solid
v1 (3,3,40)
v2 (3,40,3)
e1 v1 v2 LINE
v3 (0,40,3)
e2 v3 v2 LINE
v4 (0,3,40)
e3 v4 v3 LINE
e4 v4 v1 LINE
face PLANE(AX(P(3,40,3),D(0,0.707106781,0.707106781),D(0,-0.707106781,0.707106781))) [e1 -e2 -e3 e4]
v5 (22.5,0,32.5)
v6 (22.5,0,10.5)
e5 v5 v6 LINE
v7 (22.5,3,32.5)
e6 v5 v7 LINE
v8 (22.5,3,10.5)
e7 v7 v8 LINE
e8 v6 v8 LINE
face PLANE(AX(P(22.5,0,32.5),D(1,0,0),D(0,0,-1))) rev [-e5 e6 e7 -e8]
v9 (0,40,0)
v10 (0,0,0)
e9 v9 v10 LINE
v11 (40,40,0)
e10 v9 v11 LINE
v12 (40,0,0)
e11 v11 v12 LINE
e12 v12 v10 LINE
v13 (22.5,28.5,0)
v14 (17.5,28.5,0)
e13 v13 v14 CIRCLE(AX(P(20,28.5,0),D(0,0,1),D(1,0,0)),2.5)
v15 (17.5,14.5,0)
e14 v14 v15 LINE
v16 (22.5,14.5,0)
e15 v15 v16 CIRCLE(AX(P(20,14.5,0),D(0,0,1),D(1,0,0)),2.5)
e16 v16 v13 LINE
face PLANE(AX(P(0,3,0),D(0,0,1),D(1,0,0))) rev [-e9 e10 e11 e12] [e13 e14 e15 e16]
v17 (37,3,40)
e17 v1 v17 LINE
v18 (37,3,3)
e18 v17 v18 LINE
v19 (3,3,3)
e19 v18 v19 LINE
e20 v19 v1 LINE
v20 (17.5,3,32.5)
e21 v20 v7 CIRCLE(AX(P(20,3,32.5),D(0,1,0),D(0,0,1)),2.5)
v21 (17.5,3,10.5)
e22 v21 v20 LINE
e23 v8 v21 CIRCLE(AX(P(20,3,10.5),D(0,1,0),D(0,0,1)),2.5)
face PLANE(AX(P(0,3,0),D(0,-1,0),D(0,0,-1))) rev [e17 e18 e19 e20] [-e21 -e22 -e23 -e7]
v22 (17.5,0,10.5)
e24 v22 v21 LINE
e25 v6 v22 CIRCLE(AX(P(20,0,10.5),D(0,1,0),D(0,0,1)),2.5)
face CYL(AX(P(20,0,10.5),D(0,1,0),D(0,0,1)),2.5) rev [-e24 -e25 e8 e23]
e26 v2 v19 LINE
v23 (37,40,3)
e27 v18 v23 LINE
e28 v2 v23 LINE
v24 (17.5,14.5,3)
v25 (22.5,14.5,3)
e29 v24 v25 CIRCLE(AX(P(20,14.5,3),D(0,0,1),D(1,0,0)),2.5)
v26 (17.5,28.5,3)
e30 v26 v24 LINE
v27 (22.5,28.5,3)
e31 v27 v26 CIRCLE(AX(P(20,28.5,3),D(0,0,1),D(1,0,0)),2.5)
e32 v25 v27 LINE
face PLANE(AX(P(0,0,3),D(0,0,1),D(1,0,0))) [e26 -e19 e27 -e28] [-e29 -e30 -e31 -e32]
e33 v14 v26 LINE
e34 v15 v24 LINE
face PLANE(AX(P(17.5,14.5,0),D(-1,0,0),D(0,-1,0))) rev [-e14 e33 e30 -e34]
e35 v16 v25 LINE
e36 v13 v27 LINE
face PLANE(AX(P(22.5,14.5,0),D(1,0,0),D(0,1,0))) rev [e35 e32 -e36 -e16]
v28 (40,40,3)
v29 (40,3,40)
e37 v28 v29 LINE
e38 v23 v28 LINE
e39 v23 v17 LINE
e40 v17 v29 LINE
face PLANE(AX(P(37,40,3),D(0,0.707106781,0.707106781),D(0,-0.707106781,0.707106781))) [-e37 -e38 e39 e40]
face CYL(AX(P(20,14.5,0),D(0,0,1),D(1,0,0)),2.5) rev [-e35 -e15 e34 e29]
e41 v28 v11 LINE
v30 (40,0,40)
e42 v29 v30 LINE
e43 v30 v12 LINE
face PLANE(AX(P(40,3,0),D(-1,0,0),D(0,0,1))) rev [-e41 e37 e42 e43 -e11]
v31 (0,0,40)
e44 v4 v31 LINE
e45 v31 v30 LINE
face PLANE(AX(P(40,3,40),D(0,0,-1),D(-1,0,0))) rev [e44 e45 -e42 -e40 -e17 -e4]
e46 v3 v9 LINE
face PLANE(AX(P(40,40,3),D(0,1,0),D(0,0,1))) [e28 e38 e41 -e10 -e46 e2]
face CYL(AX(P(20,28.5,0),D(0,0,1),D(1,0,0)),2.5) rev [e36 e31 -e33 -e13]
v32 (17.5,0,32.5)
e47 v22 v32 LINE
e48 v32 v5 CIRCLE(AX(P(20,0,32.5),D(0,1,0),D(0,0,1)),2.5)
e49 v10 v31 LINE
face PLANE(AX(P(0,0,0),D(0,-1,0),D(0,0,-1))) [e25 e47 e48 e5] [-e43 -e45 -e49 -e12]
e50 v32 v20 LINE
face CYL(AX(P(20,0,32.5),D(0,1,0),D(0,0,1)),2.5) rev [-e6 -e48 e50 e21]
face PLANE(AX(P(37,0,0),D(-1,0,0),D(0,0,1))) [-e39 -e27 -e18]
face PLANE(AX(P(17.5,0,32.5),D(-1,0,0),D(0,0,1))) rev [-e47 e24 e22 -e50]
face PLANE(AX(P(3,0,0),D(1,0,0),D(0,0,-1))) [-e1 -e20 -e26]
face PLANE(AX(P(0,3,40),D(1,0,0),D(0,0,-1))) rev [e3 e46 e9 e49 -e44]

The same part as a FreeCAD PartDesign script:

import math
import FreeCAD as App
import Part
import Sketcher

doc = App.newDocument("Part")
body = doc.addObject("PartDesign::Body", "Body")

sketch1 = body.newObject("Sketcher::SketchObject", "Sketch")
sketch1.AttachmentSupport = (doc.getObject("XZ_Plane"), [""])
sketch1.MapMode = "FlatFace"
sketch1.addGeometry([
    Part.LineSegment(App.Vector(0, 0, 0), App.Vector(0, 40, 0)),
    Part.LineSegment(App.Vector(0, 40, 0), App.Vector(40, 40, 0)),
    Part.LineSegment(App.Vector(40, 40, 0), App.Vector(40, 0, 0)),
    Part.LineSegment(App.Vector(40, 0, 0), App.Vector(0, 0, 0)),
], False)
sketch1.addConstraint([
    Sketcher.Constraint("Coincident", 0, 2, 1, 1),
    Sketcher.Constraint("Coincident", 1, 2, 2, 1),
    Sketcher.Constraint("Coincident", 2, 2, 3, 1),
    Sketcher.Constraint("Coincident", 3, 2, 0, 1),
    Sketcher.Constraint("Vertical", 0),
    Sketcher.Constraint("Horizontal", 1),
    Sketcher.Constraint("Vertical", 2),
    Sketcher.Constraint("Horizontal", 3),
    Sketcher.Constraint("Coincident", 3, 2, -1, 1),
    Sketcher.Constraint("Equal", 3, 0),
    Sketcher.Constraint("DistanceX", 1, 1, 1, 2, 40.0),
])
pad1 = body.newObject("PartDesign::Pad", "Pad")
pad1.Profile = sketch1
pad1.Length = 3
pad1.Reversed = True

sketch2 = body.newObject("Sketcher::SketchObject", "Sketch001")
sketch2.AttachmentSupport = (doc.getObject("XY_Plane"), [""])
sketch2.MapMode = "FlatFace"
sketch2.addGeometry([
    Part.LineSegment(App.Vector(40, 40, 0), App.Vector(40, 3, 0)),
    Part.LineSegment(App.Vector(40, 3, 0), App.Vector(0, 3, 0)),
    Part.LineSegment(App.Vector(0, 3, 0), App.Vector(0, 40, 0)),
    Part.LineSegment(App.Vector(0, 40, 0), App.Vector(40, 40, 0)),
], False)
sketch2.addConstraint([
    Sketcher.Constraint("Coincident", 0, 2, 1, 1),
    Sketcher.Constraint("Coincident", 1, 2, 2, 1),
    Sketcher.Constraint("Coincident", 2, 2, 3, 1),
    Sketcher.Constraint("Coincident", 3, 2, 0, 1),
    Sketcher.Constraint("Vertical", 0),
    Sketcher.Constraint("Horizontal", 1),
    Sketcher.Constraint("Vertical", 2),
    Sketcher.Constraint("Horizontal", 3),
    Sketcher.Constraint("PointOnObject", 1, 2, -2),
    Sketcher.Constraint("DistanceX", 1, 2, 1, 1, 40.0),
    Sketcher.Constraint("DistanceY", 0, 2, 0, 1, 37.0),
    Sketcher.Constraint("DistanceY", -1, 1, 0, 2, 3.0),
])
pad2 = body.newObject("PartDesign::Pad", "Pad001")
pad2.Profile = sketch2
pad2.Length = 3

sketch3 = body.newObject("Sketcher::SketchObject", "Sketch002")
sketch3.AttachmentSupport = (doc.getObject("YZ_Plane"), [""])
sketch3.MapMode = "FlatFace"
sketch3.addGeometry([
    Part.LineSegment(App.Vector(40, 3, 0), App.Vector(3, 3, 0)),
    Part.LineSegment(App.Vector(3, 3, 0), App.Vector(3, 40, 0)),
    Part.LineSegment(App.Vector(3, 40, 0), App.Vector(40, 3, 0)),
], False)
sketch3.addConstraint([
    Sketcher.Constraint("Coincident", 0, 2, 1, 1),
    Sketcher.Constraint("Coincident", 1, 2, 2, 1),
    Sketcher.Constraint("Coincident", 2, 2, 0, 1),
    Sketcher.Constraint("Horizontal", 0),
    Sketcher.Constraint("Vertical", 1),
    Sketcher.Constraint("Equal", 0, 1),
    Sketcher.Constraint("DistanceX", 0, 2, 0, 1, 37.0),
    Sketcher.Constraint("DistanceX", -1, 1, 0, 2, 3.0),
    Sketcher.Constraint("DistanceY", -1, 1, 0, 2, 3.0),
])
pad3 = body.newObject("PartDesign::Pad", "Pad002")
pad3.Profile = sketch3
pad3.Length = 3

sketch4 = body.newObject("Sketcher::SketchObject", "Sketch003")
sketch4.AttachmentSupport = (doc.getObject("YZ_Plane"), [""])
sketch4.MapMode = "FlatFace"
sketch4.AttachmentOffset = App.Placement(App.Vector(0, 0, 40), App.Rotation())
sketch4.addGeometry([
    Part.LineSegment(App.Vector(3, 40, 0), App.Vector(3, 3, 0)),
    Part.LineSegment(App.Vector(3, 3, 0), App.Vector(40, 3, 0)),
    Part.LineSegment(App.Vector(40, 3, 0), App.Vector(3, 40, 0)),
], False)
sketch4.addConstraint([
    Sketcher.Constraint("Coincident", 0, 2, 1, 1),
    Sketcher.Constraint("Coincident", 1, 2, 2, 1),
    Sketcher.Constraint("Coincident", 2, 2, 0, 1),
    Sketcher.Constraint("Vertical", 0),
    Sketcher.Constraint("Horizontal", 1),
    Sketcher.Constraint("Equal", 1, 0),
    Sketcher.Constraint("DistanceX", 1, 1, 1, 2, 37.0),
    Sketcher.Constraint("DistanceX", -1, 1, 0, 2, 3.0),
    Sketcher.Constraint("DistanceY", -1, 1, 0, 2, 3.0),
])
pad4 = body.newObject("PartDesign::Pad", "Pad003")
pad4.Profile = sketch4
pad4.Length = 3
pad4.Reversed = True

sketch5 = body.newObject("Sketcher::SketchObject", "Sketch004")
sketch5.AttachmentSupport = (doc.getObject("XY_Plane"), [""])
sketch5.MapMode = "FlatFace"
sketch5.AttachmentOffset = App.Placement(App.Vector(0, 0, 3), App.Rotation())
sketch5.addGeometry([
    Part.LineSegment(App.Vector(17.5, 28.5, 0), App.Vector(17.5, 14.5, 0)),
    Part.ArcOfCircle(Part.Circle(App.Vector(20, 14.5, 0), App.Vector(0, 0, 1), 2.5), math.radians(180), math.radians(360)),
    Part.LineSegment(App.Vector(22.5, 14.5, 0), App.Vector(22.5, 28.5, 0)),
    Part.ArcOfCircle(Part.Circle(App.Vector(20, 28.5, 0), App.Vector(0, 0, 1), 2.5), math.radians(0), math.radians(180)),
], False)
sketch5.addConstraint([
    Sketcher.Constraint("Tangent", 0, 2, 1, 1),
    Sketcher.Constraint("Tangent", 1, 2, 2, 1),
    Sketcher.Constraint("Tangent", 2, 2, 3, 1),
    Sketcher.Constraint("Tangent", 3, 2, 0, 1),
    Sketcher.Constraint("Vertical", 0),
    Sketcher.Constraint("Vertical", 2),
    Sketcher.Constraint("Radius", 1, 2.5),
    Sketcher.Constraint("DistanceY", 0, 2, 0, 1, 14.0),
    Sketcher.Constraint("DistanceX", -1, 1, 1, 3, 20.0),
    Sketcher.Constraint("DistanceY", -1, 1, 1, 3, 14.5),
])
pocket1 = body.newObject("PartDesign::Pocket", "Pocket")
pocket1.Profile = sketch5
pocket1.Length = 3

sketch6 = body.newObject("Sketcher::SketchObject", "Sketch005")
sketch6.AttachmentSupport = (doc.getObject("XZ_Plane"), [""])
sketch6.MapMode = "FlatFace"
sketch6.AttachmentOffset = App.Placement(App.Vector(0, 0, -3), App.Rotation())
sketch6.addGeometry([
    Part.LineSegment(App.Vector(17.5, 10.5, 0), App.Vector(17.5, 32.5, 0)),
    Part.ArcOfCircle(Part.Circle(App.Vector(20, 32.5, 0), App.Vector(0, 0, 1), 2.5), math.radians(0), math.radians(180)),
    Part.LineSegment(App.Vector(22.5, 32.5, 0), App.Vector(22.5, 10.5, 0)),
    Part.ArcOfCircle(Part.Circle(App.Vector(20, 10.5, 0), App.Vector(0, 0, 1), 2.5), math.radians(180), math.radians(360)),
], False)
sketch6.addConstraint([
    Sketcher.Constraint("Tangent", 0, 2, 1, 2),
    Sketcher.Constraint("Tangent", 1, 1, 2, 1),
    Sketcher.Constraint("Tangent", 2, 2, 3, 2),
    Sketcher.Constraint("Tangent", 3, 1, 0, 1),
    Sketcher.Constraint("Vertical", 0),
    Sketcher.Constraint("Vertical", 2),
    Sketcher.Constraint("Radius", 1, 2.5),
    Sketcher.Constraint("DistanceY", 0, 1, 0, 2, 22.0),
    Sketcher.Constraint("DistanceX", -1, 1, 1, 3, 20.0),
    Sketcher.Constraint("DistanceY", -1, 1, 1, 3, 32.5),
])
pocket2 = body.newObject("PartDesign::Pocket", "Pocket001")
pocket2.Profile = sketch6
pocket2.Length = 3
pocket2.Reversed = True

doc.recompute()
